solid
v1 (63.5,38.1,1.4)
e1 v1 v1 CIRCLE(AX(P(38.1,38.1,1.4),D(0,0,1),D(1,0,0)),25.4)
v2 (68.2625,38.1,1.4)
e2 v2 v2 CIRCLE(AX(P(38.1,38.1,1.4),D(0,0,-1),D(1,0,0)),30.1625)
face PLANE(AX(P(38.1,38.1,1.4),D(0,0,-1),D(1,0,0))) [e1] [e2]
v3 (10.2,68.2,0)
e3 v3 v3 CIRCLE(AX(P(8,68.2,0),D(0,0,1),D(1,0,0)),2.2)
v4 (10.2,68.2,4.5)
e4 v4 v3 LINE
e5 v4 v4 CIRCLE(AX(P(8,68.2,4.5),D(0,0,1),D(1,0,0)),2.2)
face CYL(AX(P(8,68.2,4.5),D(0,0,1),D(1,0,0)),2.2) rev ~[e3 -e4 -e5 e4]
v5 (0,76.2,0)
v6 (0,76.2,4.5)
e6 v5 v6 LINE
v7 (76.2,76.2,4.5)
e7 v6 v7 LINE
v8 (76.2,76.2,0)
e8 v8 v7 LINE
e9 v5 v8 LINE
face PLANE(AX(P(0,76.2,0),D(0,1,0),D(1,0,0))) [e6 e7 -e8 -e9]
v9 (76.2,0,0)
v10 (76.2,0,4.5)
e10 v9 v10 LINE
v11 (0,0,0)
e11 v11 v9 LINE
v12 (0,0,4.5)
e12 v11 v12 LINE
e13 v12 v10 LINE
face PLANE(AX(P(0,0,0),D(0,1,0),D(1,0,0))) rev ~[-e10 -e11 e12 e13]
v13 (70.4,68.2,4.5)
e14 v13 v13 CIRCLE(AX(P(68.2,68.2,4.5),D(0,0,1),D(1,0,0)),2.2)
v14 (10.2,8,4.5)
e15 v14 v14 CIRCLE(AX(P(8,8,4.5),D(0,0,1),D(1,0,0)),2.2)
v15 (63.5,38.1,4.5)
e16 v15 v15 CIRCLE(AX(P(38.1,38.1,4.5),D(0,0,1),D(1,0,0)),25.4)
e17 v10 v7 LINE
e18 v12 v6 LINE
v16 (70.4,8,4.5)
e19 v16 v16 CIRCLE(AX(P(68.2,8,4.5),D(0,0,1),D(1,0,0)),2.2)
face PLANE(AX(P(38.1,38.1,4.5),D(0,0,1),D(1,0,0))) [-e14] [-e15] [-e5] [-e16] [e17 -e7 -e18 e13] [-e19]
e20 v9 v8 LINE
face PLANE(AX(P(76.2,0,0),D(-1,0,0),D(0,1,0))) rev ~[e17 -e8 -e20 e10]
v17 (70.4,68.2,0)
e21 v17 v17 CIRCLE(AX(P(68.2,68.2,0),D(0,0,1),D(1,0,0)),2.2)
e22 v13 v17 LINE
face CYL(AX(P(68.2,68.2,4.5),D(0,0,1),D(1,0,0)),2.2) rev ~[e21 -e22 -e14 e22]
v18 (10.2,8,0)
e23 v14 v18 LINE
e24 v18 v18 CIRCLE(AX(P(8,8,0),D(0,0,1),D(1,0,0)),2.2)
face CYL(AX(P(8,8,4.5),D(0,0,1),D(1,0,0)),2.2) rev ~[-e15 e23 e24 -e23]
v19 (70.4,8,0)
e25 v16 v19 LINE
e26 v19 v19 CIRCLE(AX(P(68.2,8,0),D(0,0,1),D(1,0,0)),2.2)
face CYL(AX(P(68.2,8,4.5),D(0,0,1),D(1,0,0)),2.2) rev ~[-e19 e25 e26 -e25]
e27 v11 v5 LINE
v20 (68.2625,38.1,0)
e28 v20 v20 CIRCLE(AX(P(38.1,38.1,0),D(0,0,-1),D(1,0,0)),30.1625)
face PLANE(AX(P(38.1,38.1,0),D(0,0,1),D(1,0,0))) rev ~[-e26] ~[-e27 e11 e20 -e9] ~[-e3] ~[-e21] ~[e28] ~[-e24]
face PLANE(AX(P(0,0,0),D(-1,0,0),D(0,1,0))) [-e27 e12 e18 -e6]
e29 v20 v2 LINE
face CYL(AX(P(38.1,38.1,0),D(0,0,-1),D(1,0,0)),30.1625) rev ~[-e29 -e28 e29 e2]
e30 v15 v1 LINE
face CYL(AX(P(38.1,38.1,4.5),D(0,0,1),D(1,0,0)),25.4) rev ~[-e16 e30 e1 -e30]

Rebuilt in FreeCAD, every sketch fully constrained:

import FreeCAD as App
import Part
import Sketcher

V = App.Vector

doc = App.newDocument("Part")
body = doc.addObject("PartDesign::Body", "Body")

# Sketch on XY plane
sketch1 = body.newObject("Sketcher::SketchObject", "Sketch")
sketch1.AttachmentSupport = (doc.getObject("XY_Plane"), [""])
sketch1.MapMode = "FlatFace"
sketch1.addGeometry([
    Part.LineSegment(V(0, 76, 0), V(0, 0, 0)),
    Part.LineSegment(V(0, 0, 0), V(76, 0, 0)),
    Part.LineSegment(V(76, 0, 0), V(76, 76, 0)),
    Part.LineSegment(V(76, 76, 0), V(0, 76, 0)),
], False)
sketch1.addConstraint([
    Sketcher.Constraint("Coincident", 0, 2, 1, 1),
    Sketcher.Constraint("Coincident", 1, 2, 2, 1),
    Sketcher.Constraint("Coincident", 2, 2, 3, 1),
    Sketcher.Constraint("Coincident", 3, 2, 0, 1),
    Sketcher.Constraint("Vertical", 0),
    Sketcher.Constraint("Horizontal", 1),
    Sketcher.Constraint("Vertical", 2),
    Sketcher.Constraint("Horizontal", 3),
    Sketcher.Constraint("Coincident", 0, 2, -1, 1),
    Sketcher.Constraint("Equal", 3, 0),
    Sketcher.Constraint("DistanceX", 1, 1, 1, 2, 76.2),
])
pad1 = body.newObject("PartDesign::Pad", "Pad")
pad1.Profile = sketch1
pad1.Length = 4.5

# Sketch on XY plane
sketch2 = body.newObject("Sketcher::SketchObject", "Sketch001")
sketch2.AttachmentSupport = (doc.getObject("XY_Plane"), [""])
sketch2.MapMode = "FlatFace"
sketch2.AttachmentOffset = App.Placement(V(0, 0, 4.5), App.Rotation())
sketch2.addGeometry(Part.Circle(V(38, 38, 0), V(0, 0, 1), 25), False)
sketch2.addConstraint([
    Sketcher.Constraint("Diameter", 0, 50.8),
    Sketcher.Constraint("DistanceX", -1, 1, 0, 3, 38.1),
    Sketcher.Constraint("DistanceY", -1, 1, 0, 3, 38.1),
])
pocket1 = body.newObject("PartDesign::Pocket", "Pocket")
pocket1.Profile = sketch2
pocket1.Type = "ThroughAll"

# Sketch on XY plane
sketch3 = body.newObject("Sketcher::SketchObject", "Sketch002")
sketch3.AttachmentSupport = (doc.getObject("XY_Plane"), [""])
sketch3.MapMode = "FlatFace"
sketch3.AttachmentOffset = App.Placement(V(0, 0, 4.5), App.Rotation())
sketch3.addGeometry([
    Part.Circle(V(8, 8, 0), V(0, 0, 1), 2.2),
    Part.Circle(V(68.2, 8, 0), V(0, 0, 1), 2.2),
    Part.Circle(V(68.2, 68.2, 0), V(0, 0, 1), 2.2),
    Part.Circle(V(8, 68.2, 0), V(0, 0, 1), 2.2),
], False)
sketch3.addConstraint([
    Sketcher.Constraint("Equal", 0, 1),
    Sketcher.Constraint("Equal", 1, 2),
    Sketcher.Constraint("Equal", 2, 3),
    Sketcher.Constraint("Horizontal", 0, 3, 1, 3),
    Sketcher.Constraint("Horizontal", 2, 3, 3, 3),
    Sketcher.Constraint("Vertical", 1, 3, 2, 3),
    Sketcher.Constraint("Vertical", 0, 3, 3, 3),
    Sketcher.Constraint("Diameter", 0, 4.4),
    Sketcher.Constraint("DistanceX", -1, 1, 0, 3, 8.0),
    Sketcher.Constraint("DistanceY", -1, 1, 0, 3, 8.0),
    Sketcher.Constraint("DistanceX", -1, 1, 1, 3, 68.2),
    Sketcher.Constraint("DistanceY", -1, 1, 2, 3, 68.2),
])
pocket2 = body.newObject("PartDesign::Pocket", "Pocket001")
pocket2.Profile = sketch3
pocket2.Type = "ThroughAll"

# Sketch on XY plane
sketch4 = body.newObject("Sketcher::SketchObject", "Sketch003")
sketch4.AttachmentSupport = (doc.getObject("XY_Plane"), [""])
sketch4.MapMode = "FlatFace"
sketch4.addGeometry(Part.Circle(V(38, 38, 0), V(0, 0, 1), 30), False)
sketch4.addConstraint([
    Sketcher.Constraint("Diameter", 0, 60.325),
    Sketcher.Constraint("DistanceX", -1, 1, 0, 3, 38.1),
    Sketcher.Constraint("DistanceY", -1, 1, 0, 3, 38.1),
])
pocket3 = body.newObject("PartDesign::Pocket", "Pocket002")
pocket3.Profile = sketch4
pocket3.Length = 1.4
pocket3.Reversed = True

doc.recompute()
